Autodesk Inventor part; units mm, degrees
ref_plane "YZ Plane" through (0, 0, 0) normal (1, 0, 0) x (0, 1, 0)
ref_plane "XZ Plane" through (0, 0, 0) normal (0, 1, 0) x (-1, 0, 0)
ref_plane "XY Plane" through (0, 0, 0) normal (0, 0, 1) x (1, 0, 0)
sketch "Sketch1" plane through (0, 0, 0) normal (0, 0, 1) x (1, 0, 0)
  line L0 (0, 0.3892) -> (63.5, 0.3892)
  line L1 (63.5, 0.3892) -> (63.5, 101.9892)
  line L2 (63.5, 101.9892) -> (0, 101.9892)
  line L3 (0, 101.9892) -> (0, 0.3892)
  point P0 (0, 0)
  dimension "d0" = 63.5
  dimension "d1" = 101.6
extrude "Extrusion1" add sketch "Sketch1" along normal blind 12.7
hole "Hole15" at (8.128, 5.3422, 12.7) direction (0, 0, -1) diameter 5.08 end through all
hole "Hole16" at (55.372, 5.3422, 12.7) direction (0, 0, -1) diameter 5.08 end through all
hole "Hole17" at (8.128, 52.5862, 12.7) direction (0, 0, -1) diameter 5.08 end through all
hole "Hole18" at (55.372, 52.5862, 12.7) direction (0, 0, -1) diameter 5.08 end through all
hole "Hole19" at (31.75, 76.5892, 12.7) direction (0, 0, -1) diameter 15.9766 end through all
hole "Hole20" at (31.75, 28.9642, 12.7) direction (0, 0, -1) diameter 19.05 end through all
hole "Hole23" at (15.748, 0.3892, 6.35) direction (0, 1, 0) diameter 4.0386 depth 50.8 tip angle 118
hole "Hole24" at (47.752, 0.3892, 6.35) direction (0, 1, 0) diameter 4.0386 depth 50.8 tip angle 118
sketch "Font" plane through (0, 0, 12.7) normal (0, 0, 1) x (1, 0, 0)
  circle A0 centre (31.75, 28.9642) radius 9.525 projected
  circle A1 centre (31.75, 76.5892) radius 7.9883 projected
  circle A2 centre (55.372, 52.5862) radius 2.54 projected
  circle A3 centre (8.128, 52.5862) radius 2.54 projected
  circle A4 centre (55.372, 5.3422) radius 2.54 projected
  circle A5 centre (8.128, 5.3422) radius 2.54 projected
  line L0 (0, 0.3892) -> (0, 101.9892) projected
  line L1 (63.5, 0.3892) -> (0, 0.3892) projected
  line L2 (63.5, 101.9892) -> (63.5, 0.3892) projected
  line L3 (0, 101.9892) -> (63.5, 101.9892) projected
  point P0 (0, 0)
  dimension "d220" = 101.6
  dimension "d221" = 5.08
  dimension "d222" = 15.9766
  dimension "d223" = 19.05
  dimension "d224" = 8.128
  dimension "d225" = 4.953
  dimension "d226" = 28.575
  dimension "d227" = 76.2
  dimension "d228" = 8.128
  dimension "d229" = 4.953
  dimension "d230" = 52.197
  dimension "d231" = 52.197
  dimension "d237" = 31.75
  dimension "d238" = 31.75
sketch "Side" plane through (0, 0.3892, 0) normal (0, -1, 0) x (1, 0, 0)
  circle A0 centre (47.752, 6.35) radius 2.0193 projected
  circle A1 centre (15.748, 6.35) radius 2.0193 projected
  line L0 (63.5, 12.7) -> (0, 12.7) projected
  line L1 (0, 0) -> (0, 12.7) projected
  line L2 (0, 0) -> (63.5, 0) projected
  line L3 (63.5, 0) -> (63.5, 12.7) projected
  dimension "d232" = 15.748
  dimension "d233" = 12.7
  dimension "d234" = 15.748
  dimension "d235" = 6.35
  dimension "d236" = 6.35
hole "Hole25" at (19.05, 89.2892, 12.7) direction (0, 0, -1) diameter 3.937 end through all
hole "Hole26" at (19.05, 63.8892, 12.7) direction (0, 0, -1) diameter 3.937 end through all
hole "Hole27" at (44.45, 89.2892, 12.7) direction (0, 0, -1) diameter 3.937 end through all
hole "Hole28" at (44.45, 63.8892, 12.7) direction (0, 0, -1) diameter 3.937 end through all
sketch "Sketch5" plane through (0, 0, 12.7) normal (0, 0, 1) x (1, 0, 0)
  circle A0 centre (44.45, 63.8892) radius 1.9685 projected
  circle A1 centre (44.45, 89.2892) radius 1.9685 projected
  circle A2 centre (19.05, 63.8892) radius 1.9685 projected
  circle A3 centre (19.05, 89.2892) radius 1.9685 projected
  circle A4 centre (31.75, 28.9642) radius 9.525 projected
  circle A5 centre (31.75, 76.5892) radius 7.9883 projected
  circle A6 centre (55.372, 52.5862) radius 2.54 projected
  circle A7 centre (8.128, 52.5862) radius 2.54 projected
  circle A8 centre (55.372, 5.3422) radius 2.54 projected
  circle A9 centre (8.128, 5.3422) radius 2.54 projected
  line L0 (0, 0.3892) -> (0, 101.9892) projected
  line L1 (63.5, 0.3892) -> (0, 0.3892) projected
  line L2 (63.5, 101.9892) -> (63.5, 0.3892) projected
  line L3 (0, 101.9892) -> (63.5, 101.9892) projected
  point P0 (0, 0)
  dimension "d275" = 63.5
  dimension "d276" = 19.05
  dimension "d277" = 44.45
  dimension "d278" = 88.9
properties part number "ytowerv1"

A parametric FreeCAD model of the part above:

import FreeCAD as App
import Part
import Sketcher
from FreeCAD import Vector
Q = App.Units.Quantity

doc = App.newDocument("Part")
body = doc.addObject("PartDesign::Body", "Body")

sketch1 = body.newObject("Sketcher::SketchObject", "Sketch")
sketch1.AttachmentSupport = (doc.getObject("XY_Plane"), [""])
sketch1.MapMode = "FlatFace"
sketch1.addGeometry([
    Part.LineSegment(Vector(0, 102, 0), Vector(0, 0, 0)),
    Part.LineSegment(Vector(0, 0, 0), Vector(64, 0, 0)),
    Part.LineSegment(Vector(64, 0, 0), Vector(64, 102, 0)),
    Part.LineSegment(Vector(64, 102, 0), Vector(0, 102, 0)),
], False)
sketch1.addConstraint([
    Sketcher.Constraint("Coincident", 0, 2, 1, 1),
    Sketcher.Constraint("Coincident", 1, 2, 2, 1),
    Sketcher.Constraint("Coincident", 2, 2, 3, 1),
    Sketcher.Constraint("Coincident", 3, 2, 0, 1),
    Sketcher.Constraint("Vertical", 0),
    Sketcher.Constraint("Horizontal", 1),
    Sketcher.Constraint("Vertical", 2),
    Sketcher.Constraint("Horizontal", 3),
    Sketcher.Constraint("PointOnObject", 0, 2, -2),
    Sketcher.Constraint("DistanceY", 0, 2, 0, 1, Q("4 in")),
    Sketcher.Constraint("DistanceX", 1, 1, 1, 2, Q("2.5 in")),
    Sketcher.Constraint("DistanceY", -1, 1, 0, 2, 0.3892),
])
pad1 = body.newObject("PartDesign::Pad", "Pad")
pad1.Profile = sketch1
pad1.Length = Q("0.5 in")

sketch2 = body.newObject("Sketcher::SketchObject", "Sketch001")
sketch2.AttachmentSupport = (doc.getObject("XY_Plane"), [""])
sketch2.MapMode = "FlatFace"
sketch2.AttachmentOffset = App.Placement(Vector(0, 0, 0.5 * 25.4), App.Rotation())
sketch2.addGeometry(Part.Circle(Vector(8.1, 5.3, 0), Vector(0, 0, 1), 2.5), False)
sketch2.addConstraint([
    Sketcher.Constraint("Diameter", 0, Q("0.2 in")),
    Sketcher.Constraint("DistanceX", -1, 1, 0, 3, Q("0.32 in")),
    Sketcher.Constraint("DistanceY", -1, 1, 0, 3, 5.3422),
])
doc.recompute()
hole = body.newObject("PartDesign::Hole", "Hole")
hole.Profile = sketch2
hole.ThreadType = "None"
hole.Diameter = Q("0.2 in")
hole.DepthType = "ThroughAll"

sketch3 = body.newObject("Sketcher::SketchObject", "Sketch002")
sketch3.AttachmentSupport = (doc.getObject("XY_Plane"), [""])
sketch3.MapMode = "FlatFace"
sketch3.AttachmentOffset = App.Placement(Vector(0, 0, 0.5 * 25.4), App.Rotation())
sketch3.addGeometry(Part.Circle(Vector(55.4, 5.3, 0), Vector(0, 0, 1), 2.5), False)
sketch3.addConstraint([
    Sketcher.Constraint("Diameter", 0, Q("0.2 in")),
    Sketcher.Constraint("DistanceX", -1, 1, 0, 3, Q("2.18 in")),
    Sketcher.Constraint("DistanceY", -1, 1, 0, 3, 5.3422),
])
doc.recompute()
hole2 = body.newObject("PartDesign::Hole", "Hole001")
hole2.Profile = sketch3
hole2.ThreadType = "None"
hole2.Diameter = Q("0.2 in")
hole2.DepthType = "ThroughAll"

sketch4 = body.newObject("Sketcher::SketchObject", "Sketch003")
sketch4.AttachmentSupport = (doc.getObject("XY_Plane"), [""])
sketch4.MapMode = "FlatFace"
sketch4.AttachmentOffset = App.Placement(Vector(0, 0, 0.5 * 25.4), App.Rotation())
sketch4.addGeometry(Part.Circle(Vector(8.1, 52.6, 0), Vector(0, 0, 1), 2.5), False)
sketch4.addConstraint([
    Sketcher.Constraint("Diameter", 0, Q("0.2 in")),
    Sketcher.Constraint("DistanceX", -1, 1, 0, 3, Q("0.32 in")),
    Sketcher.Constraint("DistanceY", -1, 1, 0, 3, 52.5862),
])
doc.recompute()
hole3 = body.newObject("PartDesign::Hole", "Hole002")
hole3.Profile = sketch4
hole3.ThreadType = "None"
hole3.Diameter = Q("0.2 in")
hole3.DepthType = "ThroughAll"

sketch5 = body.newObject("Sketcher::SketchObject", "Sketch004")
sketch5.AttachmentSupport = (doc.getObject("XY_Plane"), [""])
sketch5.MapMode = "FlatFace"
sketch5.AttachmentOffset = App.Placement(Vector(0, 0, 0.5 * 25.4), App.Rotation())
sketch5.addGeometry(Part.Circle(Vector(55.4, 52.6, 0), Vector(0, 0, 1), 2.5), False)
sketch5.addConstraint([
    Sketcher.Constraint("Diameter", 0, Q("0.2 in")),
    Sketcher.Constraint("DistanceX", -1, 1, 0, 3, Q("2.18 in")),
    Sketcher.Constraint("DistanceY", -1, 1, 0, 3, 52.5862),
])
doc.recompute()
hole4 = body.newObject("PartDesign::Hole", "Hole003")
hole4.Profile = sketch5
hole4.ThreadType = "None"
hole4.Diameter = Q("0.2 in")
hole4.DepthType = "ThroughAll"

sketch6 = body.newObject("Sketcher::SketchObject", "Sketch005")
sketch6.AttachmentSupport = (doc.getObject("XY_Plane"), [""])
sketch6.MapMode = "FlatFace"
sketch6.AttachmentOffset = App.Placement(Vector(0, 0, 0.5 * 25.4), App.Rotation())
sketch6.addGeometry(Part.Circle(Vector(32, 77, 0), Vector(0, 0, 1), 8), False)
sketch6.addConstraint([
    Sketcher.Constraint("Diameter", 0, Q("0.629 in")),
    Sketcher.Constraint("DistanceX", -1, 1, 0, 3, Q("1.25 in")),
    Sketcher.Constraint("DistanceY", -1, 1, 0, 3, 76.5892),
])
doc.recompute()
hole5 = body.newObject("PartDesign::Hole", "Hole004")
hole5.Profile = sketch6
hole5.ThreadType = "None"
hole5.Diameter = Q("0.629 in")
hole5.DepthType = "ThroughAll"

sketch7 = body.newObject("Sketcher::SketchObject", "Sketch006")
sketch7.AttachmentSupport = (doc.getObject("XY_Plane"), [""])
sketch7.MapMode = "FlatFace"
sketch7.AttachmentOffset = App.Placement(Vector(0, 0, 0.5 * 25.4), App.Rotation())
sketch7.addGeometry(Part.Circle(Vector(32, 29, 0), Vector(0, 0, 1), 10), False)
sketch7.addConstraint([
    Sketcher.Constraint("Diameter", 0, Q("0.75 in")),
    Sketcher.Constraint("DistanceX", -1, 1, 0, 3, Q("1.25 in")),
    Sketcher.Constraint("DistanceY", -1, 1, 0, 3, 28.9642),
])
doc.recompute()
hole6 = body.newObject("PartDesign::Hole", "Hole005")
hole6.Profile = sketch7
hole6.ThreadType = "None"
hole6.Diameter = Q("0.75 in")
hole6.DepthType = "ThroughAll"

sketch8 = body.newObject("Sketcher::SketchObject", "Sketch007")
sketch8.AttachmentSupport = (doc.getObject("XZ_Plane"), [""])
sketch8.MapMode = "FlatFace"
sketch8.AttachmentOffset = App.Placement(Vector(0, 0, -0.3892), App.Rotation())
sketch8.addGeometry(Part.Circle(Vector(15.7, 6.3, 0), Vector(0, 0, 1), 2), False)
sketch8.addConstraint([
    Sketcher.Constraint("Diameter", 0, Q("0.159 in")),
    Sketcher.Constraint("DistanceX", -1, 1, 0, 3, Q("0.62 in")),
    Sketcher.Constraint("DistanceY", -1, 1, 0, 3, Q("0.25 in")),
])
doc.recompute()
hole7 = body.newObject("PartDesign::Hole", "Hole006")
hole7.Profile = sketch8
hole7.ThreadType = "None"
hole7.Diameter = Q("0.159 in")
hole7.DepthType = "Dimension"
hole7.Depth = Q("2 in")
hole7.DrillPoint = "Angled"
hole7.DrillPointAngle = 118

sketch9 = body.newObject("Sketcher::SketchObject", "Sketch008")
sketch9.AttachmentSupport = (doc.getObject("XZ_Plane"), [""])
sketch9.MapMode = "FlatFace"
sketch9.AttachmentOffset = App.Placement(Vector(0, 0, -0.3892), App.Rotation())
sketch9.addGeometry(Part.Circle(Vector(47.8, 6.3, 0), Vector(0, 0, 1), 2), False)
sketch9.addConstraint([
    Sketcher.Constraint("Diameter", 0, Q("0.159 in")),
    Sketcher.Constraint("DistanceX", -1, 1, 0, 3, Q("1.88 in")),
    Sketcher.Constraint("DistanceY", -1, 1, 0, 3, Q("0.25 in")),
])
doc.recompute()
hole8 = body.newObject("PartDesign::Hole", "Hole007")
hole8.Profile = sketch9
hole8.ThreadType = "None"
hole8.Diameter = Q("0.159 in")
hole8.DepthType = "Dimension"
hole8.Depth = Q("2 in")
hole8.DrillPoint = "Angled"
hole8.DrillPointAngle = 118

sketch10 = body.newObject("Sketcher::SketchObject", "Sketch009")
sketch10.AttachmentSupport = (doc.getObject("XY_Plane"), [""])
sketch10.MapMode = "FlatFace"
sketch10.AttachmentOffset = App.Placement(Vector(0, 0, 0.5 * 25.4), App.Rotation())
sketch10.addGeometry(Part.Circle(Vector(19.1, 89.3, 0), Vector(0, 0, 1), 2), False)
sketch10.addConstraint([
    Sketcher.Constraint("Diameter", 0, Q("0.155 in")),
    Sketcher.Constraint("DistanceX", -1, 1, 0, 3, Q("0.75 in")),
    Sketcher.Constraint("DistanceY", -1, 1, 0, 3, 89.2892),
])
doc.recompute()
hole9 = body.newObject("PartDesign::Hole", "Hole008")
hole9.Profile = sketch10
hole9.ThreadType = "None"
hole9.Diameter = Q("0.155 in")
hole9.DepthType = "ThroughAll"

sketch11 = body.newObject("Sketcher::SketchObject", "Sketch010")
sketch11.AttachmentSupport = (doc.getObject("XY_Plane"), [""])
sketch11.MapMode = "FlatFace"
sketch11.AttachmentOffset = App.Placement(Vector(0, 0, 0.5 * 25.4), App.Rotation())
sketch11.addGeometry(Part.Circle(Vector(19.1, 63.9, 0), Vector(0, 0, 1), 2), False)
sketch11.addConstraint([
    Sketcher.Constraint("Diameter", 0, Q("0.155 in")),
    Sketcher.Constraint("DistanceX", -1, 1, 0, 3, Q("0.75 in")),
    Sketcher.Constraint("DistanceY", -1, 1, 0, 3, 63.8892),
])
doc.recompute()
hole10 = body.newObject("PartDesign::Hole", "Hole009")
hole10.Profile = sketch11
hole10.ThreadType = "None"
hole10.Diameter = Q("0.155 in")
hole10.DepthType = "ThroughAll"

sketch12 = body.newObject("Sketcher::SketchObject", "Sketch011")
sketch12.AttachmentSupport = (doc.getObject("XY_Plane"), [""])
sketch12.MapMode = "FlatFace"
sketch12.AttachmentOffset = App.Placement(Vector(0, 0, 0.5 * 25.4), App.Rotation())
sketch12.addGeometry(Part.Circle(Vector(44.5, 89.3, 0), Vector(0, 0, 1), 2), False)
sketch12.addConstraint([
    Sketcher.Constraint("Diameter", 0, Q("0.155 in")),
    Sketcher.Constraint("DistanceX", -1, 1, 0, 3, Q("1.75 in")),
    Sketcher.Constraint("DistanceY", -1, 1, 0, 3, 89.2892),
])
doc.recompute()
hole11 = body.newObject("PartDesign::Hole", "Hole010")
hole11.Profile = sketch12
hole11.ThreadType = "None"
hole11.Diameter = Q("0.155 in")
hole11.DepthType = "ThroughAll"

sketch13 = body.newObject("Sketcher::SketchObject", "Sketch012")
sketch13.AttachmentSupport = (doc.getObject("XY_Plane"), [""])
sketch13.MapMode = "FlatFace"
sketch13.AttachmentOffset = App.Placement(Vector(0, 0, 0.5 * 25.4), App.Rotation())
sketch13.addGeometry(Part.Circle(Vector(44.5, 63.9, 0), Vector(0, 0, 1), 2), False)
sketch13.addConstraint([
    Sketcher.Constraint("Diameter", 0, Q("0.155 in")),
    Sketcher.Constraint("DistanceX", -1, 1, 0, 3, Q("1.75 in")),
    Sketcher.Constraint("DistanceY", -1, 1, 0, 3, 63.8892),
])
doc.recompute()
hole12 = body.newObject("PartDesign::Hole", "Hole011")
hole12.Profile = sketch13
hole12.ThreadType = "None"
hole12.Diameter = Q("0.155 in")
hole12.DepthType = "ThroughAll"

doc.recompute()
